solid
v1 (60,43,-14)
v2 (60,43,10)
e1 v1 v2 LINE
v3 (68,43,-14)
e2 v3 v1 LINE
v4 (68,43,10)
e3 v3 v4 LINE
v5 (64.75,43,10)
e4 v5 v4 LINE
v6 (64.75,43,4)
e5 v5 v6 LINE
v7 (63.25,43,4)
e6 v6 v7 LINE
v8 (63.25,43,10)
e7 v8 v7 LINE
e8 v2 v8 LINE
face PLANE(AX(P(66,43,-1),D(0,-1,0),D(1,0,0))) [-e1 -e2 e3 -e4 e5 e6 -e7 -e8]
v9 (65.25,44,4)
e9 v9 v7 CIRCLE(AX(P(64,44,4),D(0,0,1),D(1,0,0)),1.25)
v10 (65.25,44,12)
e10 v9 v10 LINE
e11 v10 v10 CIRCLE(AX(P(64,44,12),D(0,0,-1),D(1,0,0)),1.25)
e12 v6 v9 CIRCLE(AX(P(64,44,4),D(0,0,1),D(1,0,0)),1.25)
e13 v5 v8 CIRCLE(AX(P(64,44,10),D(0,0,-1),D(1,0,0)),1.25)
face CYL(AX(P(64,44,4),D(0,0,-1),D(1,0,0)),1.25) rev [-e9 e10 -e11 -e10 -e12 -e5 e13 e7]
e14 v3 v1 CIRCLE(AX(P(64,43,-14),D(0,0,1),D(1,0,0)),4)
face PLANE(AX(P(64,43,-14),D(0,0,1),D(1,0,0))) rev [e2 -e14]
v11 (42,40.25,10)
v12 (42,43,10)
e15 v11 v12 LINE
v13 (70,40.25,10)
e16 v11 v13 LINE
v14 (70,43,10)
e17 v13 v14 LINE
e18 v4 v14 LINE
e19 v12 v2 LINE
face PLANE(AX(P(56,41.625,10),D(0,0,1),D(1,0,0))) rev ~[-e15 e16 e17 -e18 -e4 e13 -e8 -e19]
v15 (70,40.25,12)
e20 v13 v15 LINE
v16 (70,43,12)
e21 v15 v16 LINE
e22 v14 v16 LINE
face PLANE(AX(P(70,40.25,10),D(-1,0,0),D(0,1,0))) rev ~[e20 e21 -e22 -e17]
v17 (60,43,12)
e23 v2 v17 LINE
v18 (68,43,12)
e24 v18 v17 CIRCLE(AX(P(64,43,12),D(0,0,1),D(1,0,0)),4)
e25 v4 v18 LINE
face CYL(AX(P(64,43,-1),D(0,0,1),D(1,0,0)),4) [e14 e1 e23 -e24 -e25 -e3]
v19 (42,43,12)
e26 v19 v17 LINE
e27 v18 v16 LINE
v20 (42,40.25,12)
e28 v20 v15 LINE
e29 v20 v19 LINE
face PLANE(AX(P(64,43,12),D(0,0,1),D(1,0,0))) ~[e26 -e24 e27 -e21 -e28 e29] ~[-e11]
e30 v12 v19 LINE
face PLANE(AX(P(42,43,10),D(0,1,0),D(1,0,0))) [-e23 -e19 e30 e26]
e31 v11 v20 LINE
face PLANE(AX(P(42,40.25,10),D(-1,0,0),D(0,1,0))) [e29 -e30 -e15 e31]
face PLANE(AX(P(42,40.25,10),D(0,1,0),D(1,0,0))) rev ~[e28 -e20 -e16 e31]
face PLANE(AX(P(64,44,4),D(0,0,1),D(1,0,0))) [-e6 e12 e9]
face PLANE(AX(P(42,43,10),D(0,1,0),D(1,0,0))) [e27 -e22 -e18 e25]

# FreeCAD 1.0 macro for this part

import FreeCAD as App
import Part
import Sketcher
from FreeCAD import Vector

doc = App.newDocument("Part")
body = doc.addObject("PartDesign::Body", "Body")

# Sketch on XY plane
sketch1 = body.newObject("Sketcher::SketchObject", "Sketch")
sketch1.AttachmentSupport = (doc.getObject("XY_Plane"), [""])
sketch1.MapMode = "FlatFace"
sketch1.AttachmentOffset = App.Placement(Vector(0, 0, 4), App.Rotation())
sketch1.addGeometry(Part.Circle(Vector(55, 29, 0), Vector(0, 0, 1), 1.2), False)
sketch1.addConstraint(Sketcher.Constraint("Diameter", 0, 2.5))
sketch1.addConstraint(Sketcher.Constraint("DistanceX", -1, 1, 0, 3, 55.0))
sketch1.addConstraint(Sketcher.Constraint("DistanceY", -1, 1, 0, 3, 29.0))
pad1 = body.newObject("PartDesign::Pad", "Pad")
pad1.Profile = sketch1
pad1.Length = 10
body2 = doc.addObject("PartDesign::Body", "Body001")

# Sketch on XZ plane
sketch2 = body2.newObject("Sketcher::SketchObject", "Sketch001")
sketch2.AttachmentSupport = (doc.getObject("XZ_Plane001"), [""])
sketch2.MapMode = "FlatFace"
sketch2.AttachmentOffset = App.Placement(Vector(0, 0, -28), App.Rotation())
sketch2.addGeometry(Part.LineSegment(Vector(55, 12, 0), Vector(55, -14, 0)), False)
sketch2.addGeometry(Part.LineSegment(Vector(55, -14, 0), Vector(59, -14, 0)), False)
sketch2.addGeometry(Part.LineSegment(Vector(59, -14, 0), Vector(59, 12, 0)), False)
sketch2.addGeometry(Part.LineSegment(Vector(59, 12, 0), Vector(55, 12, 0)), False)
sketch2.addGeometry(Part.LineSegment(Vector(55, -14, 0), Vector(55, 12, 0)), True)  # axis
sketch2.addConstraint(Sketcher.Constraint("Coincident", 0, 2, 1, 1))
sketch2.addConstraint(Sketcher.Constraint("Coincident", 1, 2, 2, 1))
sketch2.addConstraint(Sketcher.Constraint("Coincident", 2, 2, 3, 1))
sketch2.addConstraint(Sketcher.Constraint("Coincident", 3, 2, 0, 1))
sketch2.addConstraint(Sketcher.Constraint("Vertical", 0))
sketch2.addConstraint(Sketcher.Constraint("Horizontal", 1))
sketch2.addConstraint(Sketcher.Constraint("Vertical", 2))
sketch2.addConstraint(Sketcher.Constraint("Horizontal", 3))
sketch2.addConstraint(Sketcher.Constraint("Vertical", 4))
sketch2.addConstraint(Sketcher.Constraint("Coincident", 4, 1, 0, 2))
sketch2.addConstraint(Sketcher.Constraint("Horizontal", 2, 2, 4, 2))
sketch2.addConstraint(Sketcher.Constraint("DistanceX", 1, 1, 1, 2, 4.0))
sketch2.addConstraint(Sketcher.Constraint("DistanceY", 0, 2, 0, 1, 26.0))
sketch2.addConstraint(Sketcher.Constraint("DistanceX", -1, 1, 0, 2, 55.0))
sketch2.addConstraint(Sketcher.Constraint("DistanceY", 0, 2, -1, 1, 14.0))
revolution = body2.newObject("PartDesign::Revolution", "Revolution")
revolution.Profile = sketch2
revolution.ReferenceAxis = (sketch2, ["Axis0"])
revolution.Angle = 180
body3 = doc.addObject("PartDesign::Body", "Body002")

# Sketch on XY plane
sketch3 = body3.newObject("Sketcher::SketchObject", "Sketch002")
sketch3.AttachmentSupport = (doc.getObject("XY_Plane002"), [""])
sketch3.MapMode = "FlatFace"
sketch3.AttachmentOffset = App.Placement(Vector(0, 0, 10), App.Rotation())
sketch3.addGeometry(Part.LineSegment(Vector(33, 28, 0), Vector(33, 25.2, 0)), False)
sketch3.addGeometry(Part.LineSegment(Vector(33, 25.2, 0), Vector(61, 25.2, 0)), False)
sketch3.addGeometry(Part.LineSegment(Vector(61, 25.2, 0), Vector(61, 28, 0)), False)
sketch3.addGeometry(Part.LineSegment(Vector(61, 28, 0), Vector(33, 28, 0)), False)
sketch3.addConstraint(Sketcher.Constraint("Coincident", 0, 2, 1, 1))
sketch3.addConstraint(Sketcher.Constraint("Coincident", 1, 2, 2, 1))
sketch3.addConstraint(Sketcher.Constraint("Coincident", 2, 2, 3, 1))
sketch3.addConstraint(Sketcher.Constraint("Coincident", 3, 2, 0, 1))
sketch3.addConstraint(Sketcher.Constraint("Vertical", 0))
sketch3.addConstraint(Sketcher.Constraint("Horizontal", 1))
sketch3.addConstraint(Sketcher.Constraint("Vertical", 2))
sketch3.addConstraint(Sketcher.Constraint("Horizontal", 3))
sketch3.addConstraint(Sketcher.Constraint("DistanceX", 1, 1, 1, 2, 28.0))
sketch3.addConstraint(Sketcher.Constraint("DistanceX", -1, 1, 0, 2, 33.0))
sketch3.addConstraint(Sketcher.Constraint("DistanceY", -1, 1, 2, 2, 28.0))
sketch3.addConstraint(Sketcher.Constraint("DistanceY", 0, 2, 0, 1, 2.75))
pad2 = body3.newObject("PartDesign::Pad", "Pad001")
pad2.Profile = sketch3
pad2.Length = 2
doc.recompute()

boolean = body3.newObject("PartDesign::Boolean", "Boolean")
boolean.Type = "Fuse"
boolean.addObjects([body2])
doc.recompute()

boolean2 = body3.newObject("PartDesign::Boolean", "Boolean001")
boolean2.Type = "Cut"
boolean2.addObjects([body])
body4 = doc.addObject("PartDesign::Body", "Body003")
doc.recompute()

body3.Placement = App.Placement(Vector(9, 15, 0), App.Rotation(Vector(0, 0, 1), 0))
boolean3 = body4.newObject("PartDesign::Boolean", "Boolean002")
boolean3.Type = "Fuse"
boolean3.addObjects([body3])

doc.recompute()
